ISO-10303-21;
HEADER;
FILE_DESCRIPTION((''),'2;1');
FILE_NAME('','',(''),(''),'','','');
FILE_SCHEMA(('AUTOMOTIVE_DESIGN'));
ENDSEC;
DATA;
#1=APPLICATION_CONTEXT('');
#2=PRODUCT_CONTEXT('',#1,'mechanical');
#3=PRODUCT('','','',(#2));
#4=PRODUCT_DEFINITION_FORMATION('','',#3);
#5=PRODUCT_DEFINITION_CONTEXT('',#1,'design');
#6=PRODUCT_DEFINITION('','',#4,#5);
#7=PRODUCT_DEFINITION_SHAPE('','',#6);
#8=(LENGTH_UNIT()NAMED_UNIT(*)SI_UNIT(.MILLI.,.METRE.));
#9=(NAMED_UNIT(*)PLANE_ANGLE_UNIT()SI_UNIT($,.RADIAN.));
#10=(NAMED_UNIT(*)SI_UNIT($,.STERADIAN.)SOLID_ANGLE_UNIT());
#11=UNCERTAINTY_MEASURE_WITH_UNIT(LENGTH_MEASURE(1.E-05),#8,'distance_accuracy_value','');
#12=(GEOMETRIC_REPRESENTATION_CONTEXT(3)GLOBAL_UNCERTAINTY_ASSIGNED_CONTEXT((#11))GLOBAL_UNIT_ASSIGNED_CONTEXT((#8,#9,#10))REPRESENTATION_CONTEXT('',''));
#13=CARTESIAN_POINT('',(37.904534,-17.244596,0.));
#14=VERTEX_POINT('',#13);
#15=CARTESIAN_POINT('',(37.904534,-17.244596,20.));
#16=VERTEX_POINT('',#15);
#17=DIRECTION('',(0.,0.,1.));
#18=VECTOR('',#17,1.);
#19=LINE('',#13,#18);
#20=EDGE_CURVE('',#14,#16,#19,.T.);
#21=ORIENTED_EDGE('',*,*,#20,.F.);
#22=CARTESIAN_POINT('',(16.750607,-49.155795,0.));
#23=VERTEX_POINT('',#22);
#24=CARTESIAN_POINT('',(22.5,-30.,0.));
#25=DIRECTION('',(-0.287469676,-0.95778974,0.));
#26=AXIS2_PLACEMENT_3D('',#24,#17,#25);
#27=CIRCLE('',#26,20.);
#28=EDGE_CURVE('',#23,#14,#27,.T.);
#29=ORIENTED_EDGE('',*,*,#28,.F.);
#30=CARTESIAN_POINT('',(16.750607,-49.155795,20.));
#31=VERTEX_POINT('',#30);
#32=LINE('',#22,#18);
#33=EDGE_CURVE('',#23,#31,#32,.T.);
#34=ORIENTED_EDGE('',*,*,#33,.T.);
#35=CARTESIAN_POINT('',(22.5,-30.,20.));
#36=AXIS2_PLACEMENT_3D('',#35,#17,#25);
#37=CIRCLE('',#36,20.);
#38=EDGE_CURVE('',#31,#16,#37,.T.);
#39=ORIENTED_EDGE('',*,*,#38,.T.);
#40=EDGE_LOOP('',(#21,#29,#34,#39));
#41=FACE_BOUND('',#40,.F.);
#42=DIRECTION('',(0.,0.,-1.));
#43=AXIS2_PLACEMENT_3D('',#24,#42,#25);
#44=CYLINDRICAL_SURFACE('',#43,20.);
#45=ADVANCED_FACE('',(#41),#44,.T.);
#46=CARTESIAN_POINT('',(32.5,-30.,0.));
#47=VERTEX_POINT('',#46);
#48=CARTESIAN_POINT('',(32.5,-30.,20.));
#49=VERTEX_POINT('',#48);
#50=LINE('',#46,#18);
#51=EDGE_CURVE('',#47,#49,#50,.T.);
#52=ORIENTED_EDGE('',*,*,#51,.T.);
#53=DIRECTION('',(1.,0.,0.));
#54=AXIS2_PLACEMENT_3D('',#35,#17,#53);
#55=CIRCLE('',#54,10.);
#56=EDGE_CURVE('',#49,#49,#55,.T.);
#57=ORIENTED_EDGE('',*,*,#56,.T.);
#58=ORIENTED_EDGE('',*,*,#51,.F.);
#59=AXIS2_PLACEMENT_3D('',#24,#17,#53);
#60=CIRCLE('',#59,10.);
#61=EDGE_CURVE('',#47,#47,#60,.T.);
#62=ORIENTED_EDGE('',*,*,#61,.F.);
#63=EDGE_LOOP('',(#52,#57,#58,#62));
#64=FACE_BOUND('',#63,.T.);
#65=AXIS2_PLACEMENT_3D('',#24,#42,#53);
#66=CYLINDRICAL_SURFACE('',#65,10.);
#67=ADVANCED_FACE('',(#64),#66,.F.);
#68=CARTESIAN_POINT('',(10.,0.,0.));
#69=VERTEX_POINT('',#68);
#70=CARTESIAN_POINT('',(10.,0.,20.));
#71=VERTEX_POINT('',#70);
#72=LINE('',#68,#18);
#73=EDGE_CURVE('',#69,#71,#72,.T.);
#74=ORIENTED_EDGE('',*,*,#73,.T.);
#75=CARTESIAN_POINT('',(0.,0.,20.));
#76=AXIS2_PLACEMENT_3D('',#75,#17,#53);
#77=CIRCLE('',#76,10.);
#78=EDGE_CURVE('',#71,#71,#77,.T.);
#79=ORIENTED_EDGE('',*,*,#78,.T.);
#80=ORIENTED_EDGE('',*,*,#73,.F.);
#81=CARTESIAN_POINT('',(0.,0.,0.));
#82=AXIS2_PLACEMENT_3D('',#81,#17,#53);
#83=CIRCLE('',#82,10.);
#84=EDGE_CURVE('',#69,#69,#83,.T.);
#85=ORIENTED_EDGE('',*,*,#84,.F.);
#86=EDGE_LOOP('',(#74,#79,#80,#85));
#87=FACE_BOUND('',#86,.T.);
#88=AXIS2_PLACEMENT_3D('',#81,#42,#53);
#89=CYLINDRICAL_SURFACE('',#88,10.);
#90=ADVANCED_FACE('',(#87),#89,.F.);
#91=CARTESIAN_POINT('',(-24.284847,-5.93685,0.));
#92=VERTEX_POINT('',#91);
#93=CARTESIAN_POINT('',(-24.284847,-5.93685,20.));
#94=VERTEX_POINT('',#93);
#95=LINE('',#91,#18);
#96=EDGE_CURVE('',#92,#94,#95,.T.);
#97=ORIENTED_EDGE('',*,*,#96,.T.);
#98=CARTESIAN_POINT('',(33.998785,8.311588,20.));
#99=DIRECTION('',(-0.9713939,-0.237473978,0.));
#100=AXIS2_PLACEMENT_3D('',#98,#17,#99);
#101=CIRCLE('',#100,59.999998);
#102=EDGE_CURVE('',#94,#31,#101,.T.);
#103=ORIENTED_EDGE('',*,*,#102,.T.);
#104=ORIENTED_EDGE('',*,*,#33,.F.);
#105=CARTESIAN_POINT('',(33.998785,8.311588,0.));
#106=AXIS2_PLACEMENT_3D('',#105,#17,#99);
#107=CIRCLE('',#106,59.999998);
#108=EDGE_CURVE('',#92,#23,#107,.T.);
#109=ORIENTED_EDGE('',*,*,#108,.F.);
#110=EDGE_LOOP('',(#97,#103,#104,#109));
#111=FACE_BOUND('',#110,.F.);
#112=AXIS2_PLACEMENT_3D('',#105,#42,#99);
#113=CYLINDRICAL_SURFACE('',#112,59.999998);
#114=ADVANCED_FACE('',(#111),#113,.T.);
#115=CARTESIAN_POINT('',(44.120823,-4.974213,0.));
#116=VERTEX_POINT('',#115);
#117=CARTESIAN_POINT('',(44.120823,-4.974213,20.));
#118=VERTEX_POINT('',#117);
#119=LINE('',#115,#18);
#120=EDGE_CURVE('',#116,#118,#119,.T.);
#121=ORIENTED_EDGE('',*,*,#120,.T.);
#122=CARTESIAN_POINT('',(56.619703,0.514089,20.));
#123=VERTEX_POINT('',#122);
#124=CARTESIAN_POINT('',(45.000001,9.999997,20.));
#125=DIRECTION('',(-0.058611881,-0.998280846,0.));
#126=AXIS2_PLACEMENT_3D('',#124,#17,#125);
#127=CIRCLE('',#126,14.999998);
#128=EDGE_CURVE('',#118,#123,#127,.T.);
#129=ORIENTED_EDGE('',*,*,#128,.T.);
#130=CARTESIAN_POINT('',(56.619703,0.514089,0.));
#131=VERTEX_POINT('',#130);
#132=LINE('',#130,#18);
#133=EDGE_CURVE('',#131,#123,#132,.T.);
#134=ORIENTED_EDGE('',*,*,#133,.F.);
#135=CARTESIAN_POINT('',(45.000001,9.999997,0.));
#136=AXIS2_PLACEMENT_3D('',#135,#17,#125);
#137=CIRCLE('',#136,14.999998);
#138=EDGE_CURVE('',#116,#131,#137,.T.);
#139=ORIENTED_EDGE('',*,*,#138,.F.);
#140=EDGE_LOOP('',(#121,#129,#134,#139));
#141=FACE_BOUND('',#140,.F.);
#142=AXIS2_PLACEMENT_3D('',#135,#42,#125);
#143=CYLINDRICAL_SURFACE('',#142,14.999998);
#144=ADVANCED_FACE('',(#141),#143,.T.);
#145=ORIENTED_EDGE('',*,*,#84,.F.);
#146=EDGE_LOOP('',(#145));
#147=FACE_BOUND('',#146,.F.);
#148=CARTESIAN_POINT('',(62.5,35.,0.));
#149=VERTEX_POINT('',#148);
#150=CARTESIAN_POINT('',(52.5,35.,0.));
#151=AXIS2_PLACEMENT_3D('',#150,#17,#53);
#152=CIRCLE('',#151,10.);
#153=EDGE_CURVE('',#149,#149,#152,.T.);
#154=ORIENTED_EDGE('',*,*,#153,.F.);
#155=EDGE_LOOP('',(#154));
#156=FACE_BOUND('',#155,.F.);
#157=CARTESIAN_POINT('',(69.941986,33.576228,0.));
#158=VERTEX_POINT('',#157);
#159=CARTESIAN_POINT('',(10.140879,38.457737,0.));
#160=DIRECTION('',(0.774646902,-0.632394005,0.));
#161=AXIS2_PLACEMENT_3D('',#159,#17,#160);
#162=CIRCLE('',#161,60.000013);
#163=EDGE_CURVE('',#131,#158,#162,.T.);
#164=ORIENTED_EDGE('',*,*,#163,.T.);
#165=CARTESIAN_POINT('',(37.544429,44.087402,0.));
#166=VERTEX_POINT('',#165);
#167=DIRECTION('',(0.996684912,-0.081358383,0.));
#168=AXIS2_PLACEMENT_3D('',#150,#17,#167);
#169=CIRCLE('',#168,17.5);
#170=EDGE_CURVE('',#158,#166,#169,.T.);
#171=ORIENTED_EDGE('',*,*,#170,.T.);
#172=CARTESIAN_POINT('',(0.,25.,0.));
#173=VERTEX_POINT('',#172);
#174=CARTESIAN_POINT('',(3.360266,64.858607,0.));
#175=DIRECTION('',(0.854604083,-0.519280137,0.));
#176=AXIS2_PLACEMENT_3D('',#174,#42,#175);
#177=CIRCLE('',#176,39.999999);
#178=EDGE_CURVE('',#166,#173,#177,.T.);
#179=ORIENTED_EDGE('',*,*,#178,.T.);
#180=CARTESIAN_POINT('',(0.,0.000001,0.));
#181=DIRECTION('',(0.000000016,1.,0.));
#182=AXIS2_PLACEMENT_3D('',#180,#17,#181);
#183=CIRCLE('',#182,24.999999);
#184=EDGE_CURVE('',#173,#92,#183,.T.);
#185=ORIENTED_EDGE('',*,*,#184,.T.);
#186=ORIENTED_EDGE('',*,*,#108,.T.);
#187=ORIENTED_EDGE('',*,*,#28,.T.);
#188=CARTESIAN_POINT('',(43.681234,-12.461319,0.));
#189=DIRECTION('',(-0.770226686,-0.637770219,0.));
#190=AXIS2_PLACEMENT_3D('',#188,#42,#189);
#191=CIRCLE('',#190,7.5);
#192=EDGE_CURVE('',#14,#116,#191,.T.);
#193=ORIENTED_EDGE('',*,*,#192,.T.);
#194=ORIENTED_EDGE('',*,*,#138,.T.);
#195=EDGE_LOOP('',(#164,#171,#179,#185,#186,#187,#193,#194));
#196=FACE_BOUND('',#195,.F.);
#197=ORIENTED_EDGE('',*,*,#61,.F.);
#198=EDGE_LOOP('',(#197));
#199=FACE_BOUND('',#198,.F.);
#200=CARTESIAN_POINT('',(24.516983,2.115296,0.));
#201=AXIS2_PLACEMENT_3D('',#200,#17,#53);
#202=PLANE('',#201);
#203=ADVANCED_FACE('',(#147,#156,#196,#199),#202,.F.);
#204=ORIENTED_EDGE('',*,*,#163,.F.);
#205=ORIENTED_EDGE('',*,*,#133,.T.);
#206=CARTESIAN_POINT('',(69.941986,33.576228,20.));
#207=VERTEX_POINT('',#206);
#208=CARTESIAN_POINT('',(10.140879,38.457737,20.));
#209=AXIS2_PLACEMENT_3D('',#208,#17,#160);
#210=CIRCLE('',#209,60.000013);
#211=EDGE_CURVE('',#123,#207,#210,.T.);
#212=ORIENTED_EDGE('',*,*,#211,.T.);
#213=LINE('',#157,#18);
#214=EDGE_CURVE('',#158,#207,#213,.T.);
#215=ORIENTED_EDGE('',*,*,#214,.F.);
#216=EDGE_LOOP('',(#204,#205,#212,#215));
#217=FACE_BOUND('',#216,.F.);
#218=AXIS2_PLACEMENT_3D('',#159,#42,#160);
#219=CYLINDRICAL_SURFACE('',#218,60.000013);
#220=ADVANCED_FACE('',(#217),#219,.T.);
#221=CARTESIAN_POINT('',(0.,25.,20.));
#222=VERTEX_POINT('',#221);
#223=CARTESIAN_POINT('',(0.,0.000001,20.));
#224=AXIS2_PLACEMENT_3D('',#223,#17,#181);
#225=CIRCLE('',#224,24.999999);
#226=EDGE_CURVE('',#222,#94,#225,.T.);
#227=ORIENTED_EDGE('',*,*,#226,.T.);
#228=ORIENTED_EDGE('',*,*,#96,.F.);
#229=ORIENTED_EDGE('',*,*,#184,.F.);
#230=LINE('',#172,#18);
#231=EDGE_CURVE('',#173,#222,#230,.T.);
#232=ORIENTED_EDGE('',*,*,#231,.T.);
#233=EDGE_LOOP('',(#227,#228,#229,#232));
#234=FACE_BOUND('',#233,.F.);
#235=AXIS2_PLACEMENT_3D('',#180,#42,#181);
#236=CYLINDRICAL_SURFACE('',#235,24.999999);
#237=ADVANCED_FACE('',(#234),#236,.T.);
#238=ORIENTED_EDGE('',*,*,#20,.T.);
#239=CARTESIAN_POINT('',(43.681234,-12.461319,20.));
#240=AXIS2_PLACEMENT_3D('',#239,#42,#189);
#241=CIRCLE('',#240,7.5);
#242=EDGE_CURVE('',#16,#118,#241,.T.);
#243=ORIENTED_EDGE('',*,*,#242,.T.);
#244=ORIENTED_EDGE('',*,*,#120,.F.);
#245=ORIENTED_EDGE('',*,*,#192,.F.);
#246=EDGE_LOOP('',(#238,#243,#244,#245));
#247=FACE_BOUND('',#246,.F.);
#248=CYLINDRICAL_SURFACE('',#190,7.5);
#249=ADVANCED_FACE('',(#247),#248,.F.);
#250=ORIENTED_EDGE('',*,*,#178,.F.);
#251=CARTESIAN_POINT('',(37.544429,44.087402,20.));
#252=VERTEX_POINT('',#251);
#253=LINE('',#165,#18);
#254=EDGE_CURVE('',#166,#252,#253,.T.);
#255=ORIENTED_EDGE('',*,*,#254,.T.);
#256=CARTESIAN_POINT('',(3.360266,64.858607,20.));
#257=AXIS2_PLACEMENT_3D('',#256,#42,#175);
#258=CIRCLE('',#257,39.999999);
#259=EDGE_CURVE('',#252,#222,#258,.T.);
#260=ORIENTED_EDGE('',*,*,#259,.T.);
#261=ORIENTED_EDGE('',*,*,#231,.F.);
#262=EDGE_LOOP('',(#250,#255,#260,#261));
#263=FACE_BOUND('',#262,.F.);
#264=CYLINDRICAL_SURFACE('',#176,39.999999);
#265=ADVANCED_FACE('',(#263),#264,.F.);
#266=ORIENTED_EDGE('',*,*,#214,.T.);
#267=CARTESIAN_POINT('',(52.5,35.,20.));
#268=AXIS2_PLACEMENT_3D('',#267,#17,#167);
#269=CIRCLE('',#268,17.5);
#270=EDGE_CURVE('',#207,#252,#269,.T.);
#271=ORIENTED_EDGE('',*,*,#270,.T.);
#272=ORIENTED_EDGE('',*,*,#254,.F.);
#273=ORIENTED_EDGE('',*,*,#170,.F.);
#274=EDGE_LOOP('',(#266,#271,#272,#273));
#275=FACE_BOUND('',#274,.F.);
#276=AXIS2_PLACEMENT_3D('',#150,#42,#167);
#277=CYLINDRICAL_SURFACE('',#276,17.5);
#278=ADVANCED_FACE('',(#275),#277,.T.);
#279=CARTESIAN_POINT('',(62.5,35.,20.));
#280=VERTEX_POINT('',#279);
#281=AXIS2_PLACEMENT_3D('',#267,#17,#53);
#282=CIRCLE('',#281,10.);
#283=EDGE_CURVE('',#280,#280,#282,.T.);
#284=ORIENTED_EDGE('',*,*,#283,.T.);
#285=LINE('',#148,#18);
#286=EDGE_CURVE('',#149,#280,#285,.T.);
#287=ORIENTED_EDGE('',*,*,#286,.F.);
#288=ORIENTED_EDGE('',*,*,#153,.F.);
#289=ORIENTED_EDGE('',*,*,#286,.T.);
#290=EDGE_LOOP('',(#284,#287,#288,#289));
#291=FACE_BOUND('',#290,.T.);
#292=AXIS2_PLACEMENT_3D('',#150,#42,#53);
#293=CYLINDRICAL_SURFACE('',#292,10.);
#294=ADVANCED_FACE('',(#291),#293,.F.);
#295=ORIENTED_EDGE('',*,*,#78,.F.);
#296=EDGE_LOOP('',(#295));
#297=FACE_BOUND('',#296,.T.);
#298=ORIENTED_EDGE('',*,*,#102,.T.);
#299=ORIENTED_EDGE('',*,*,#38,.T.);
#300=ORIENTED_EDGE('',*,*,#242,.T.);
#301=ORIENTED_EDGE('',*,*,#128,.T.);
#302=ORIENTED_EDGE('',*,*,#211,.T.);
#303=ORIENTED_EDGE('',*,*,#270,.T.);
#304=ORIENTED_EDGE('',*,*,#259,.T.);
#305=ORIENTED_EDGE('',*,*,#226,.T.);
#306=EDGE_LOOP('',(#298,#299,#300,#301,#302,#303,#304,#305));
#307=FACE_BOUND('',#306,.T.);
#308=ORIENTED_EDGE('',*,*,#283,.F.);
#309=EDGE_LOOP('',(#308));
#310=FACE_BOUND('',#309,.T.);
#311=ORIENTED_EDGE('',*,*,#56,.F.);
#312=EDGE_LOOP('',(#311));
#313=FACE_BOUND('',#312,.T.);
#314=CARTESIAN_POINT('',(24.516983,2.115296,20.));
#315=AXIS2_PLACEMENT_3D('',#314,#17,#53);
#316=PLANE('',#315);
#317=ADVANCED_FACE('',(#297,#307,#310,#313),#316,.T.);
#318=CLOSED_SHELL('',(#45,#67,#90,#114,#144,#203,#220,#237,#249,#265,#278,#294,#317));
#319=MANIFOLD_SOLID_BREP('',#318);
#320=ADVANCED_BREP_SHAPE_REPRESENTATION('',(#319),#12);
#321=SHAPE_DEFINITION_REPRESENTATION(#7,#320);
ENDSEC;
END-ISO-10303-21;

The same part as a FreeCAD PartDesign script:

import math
import FreeCAD as App
import Part
import Sketcher

doc = App.newDocument("Part")
params = doc.addObject("Spreadsheet::Sheet", "Params")
for row, (alias, value) in enumerate([
    ("sketch1_diameter", "20 mm"),
    ("sketch1_radius", "39.999999 mm"),
    ("sketch1_radius2", "24.999999 mm"),
    ("sketch1_radius3", "59.999998 mm"),
    ("sketch1_radius4", "20 mm"),
    ("pad1_length", "20 mm"),
], start=1):
    params.set(f"A{row}", alias)
    params.set(f"B{row}", "=" + value)
    params.setAlias(f"B{row}", alias)

body = doc.addObject("PartDesign::Body", "Body")

sketch1 = doc.addObject("Sketcher::SketchObject", "Sketch")
body.addObject(sketch1)
sketch1.AttachmentSupport = (doc.XY_Plane, [""])
sketch1.MapMode = "FlatFace"
sketch1.addGeometry([
    Part.ArcOfCircle(Part.Circle(App.Vector(3, 65, 0), App.Vector(0, 0, 1), 40), math.radians(-95), math.radians(-31)),
    Part.ArcOfCircle(Part.Circle(App.Vector(0, 0, 0), App.Vector(0, 0, 1), 25), math.radians(90), math.radians(194)),
    Part.ArcOfCircle(Part.Circle(App.Vector(34, 8, 0), App.Vector(0, 0, 1), 60), math.radians(-166), math.radians(-107)),
    Part.ArcOfCircle(Part.Circle(App.Vector(23, -30, 0), App.Vector(0, 0, 1), 20), math.radians(-107), math.radians(40)),
    Part.ArcOfCircle(Part.Circle(App.Vector(44, -12, 0), App.Vector(0, 0, 1), 7), math.radians(87), math.radians(220)),
    Part.ArcOfCircle(Part.Circle(App.Vector(45, 10, 0), App.Vector(0, 0, 1), 15), math.radians(-93), math.radians(-39)),
    Part.ArcOfCircle(Part.Circle(App.Vector(10, 38, 0), App.Vector(0, 0, 1), 60), math.radians(-39), math.radians(-5)),
    Part.ArcOfCircle(Part.Circle(App.Vector(53, 35, 0), App.Vector(0, 0, 1), 17), math.radians(-5), math.radians(149)),
    Part.Circle(App.Vector(22, -30, 0), App.Vector(0, 0, 1), 10),
    Part.Circle(App.Vector(0, 0, 0), App.Vector(0, 0, 1), 10),
    Part.Circle(App.Vector(52, 35, 0), App.Vector(0, 0, 1), 10),
], False)
sketch1.addConstraint([
    Sketcher.Constraint("Coincident", 0, 1, 1, 1),
    Sketcher.Constraint("Tangent", 1, 2, 2, 1),
    Sketcher.Constraint("Tangent", 2, 2, 3, 1),
    Sketcher.Constraint("Tangent", 3, 2, 4, 2),
    Sketcher.Constraint("Tangent", 4, 1, 5, 1),
    Sketcher.Constraint("Tangent", 5, 2, 6, 1),
    Sketcher.Constraint("Tangent", 6, 2, 7, 1),
    Sketcher.Constraint("Tangent", 7, 2, 0, 2),
    Sketcher.Constraint("Coincident", 1, 3, -1, 1),
    Sketcher.Constraint("Coincident", 9, 3, -1, 1),
    Sketcher.Constraint("Coincident", 8, 3, 3, 3),
    Sketcher.Constraint("Coincident", 10, 3, 7, 3),
    Sketcher.Constraint("Equal", 8, 9),
    Sketcher.Constraint("Equal", 9, 10),
    Sketcher.Constraint("PointOnObject", 0, 1, -2),
    Sketcher.Constraint("Diameter", 8, 20.0),
    Sketcher.Constraint("Radius", 0, 39.999999),
    Sketcher.Constraint("Radius", 1, 24.999999),
    Sketcher.Constraint("Radius", 2, 59.999998),
    Sketcher.Constraint("Radius", 3, 20.0),
    Sketcher.Constraint("Radius", 4, 7.5),
    Sketcher.Constraint("Radius", 7, 17.5),
    Sketcher.Constraint("DistanceY", 3, 3, -1, 1, 30.0),
    Sketcher.Constraint("DistanceX", -1, 1, 5, 3, 45.000001),
    Sketcher.Constraint("DistanceY", -1, 1, 7, 3, 35.0),
    Sketcher.Constraint("DistanceX", -1, 1, 3, 3, 22.5),
    Sketcher.Constraint("DistanceX", -1, 1, 7, 3, 52.5),
    Sketcher.Constraint("Radius", 5, 14.999998),
    Sketcher.Constraint("Radius", 6, 60.000013),
    Sketcher.Constraint("DistanceX", 3, 2, 4, 3, 5.7767),
])
sketch1.setExpression("Constraints[15]", "Params.sketch1_diameter")
sketch1.setExpression("Constraints[16]", "Params.sketch1_radius")
sketch1.setExpression("Constraints[17]", "Params.sketch1_radius2")
sketch1.setExpression("Constraints[18]", "Params.sketch1_radius3")
sketch1.setExpression("Constraints[19]", "Params.sketch1_radius4")
pad1 = doc.addObject("PartDesign::Pad", "Pad")
body.addObject(pad1)
pad1.Profile = sketch1
pad1.setExpression("Length", "Params.pad1_length")

doc.recompute()
